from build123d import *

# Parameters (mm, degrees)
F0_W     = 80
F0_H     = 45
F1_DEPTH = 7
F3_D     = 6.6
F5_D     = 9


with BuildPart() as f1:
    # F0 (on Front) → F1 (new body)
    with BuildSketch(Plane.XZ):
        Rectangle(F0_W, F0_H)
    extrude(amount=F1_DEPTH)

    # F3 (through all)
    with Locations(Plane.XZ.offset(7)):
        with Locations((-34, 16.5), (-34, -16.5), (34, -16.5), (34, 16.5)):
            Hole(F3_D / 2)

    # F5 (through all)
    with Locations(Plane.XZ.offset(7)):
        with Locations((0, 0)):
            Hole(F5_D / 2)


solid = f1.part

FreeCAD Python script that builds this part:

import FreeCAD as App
import Part
import Sketcher
from FreeCAD import Vector
Q = App.Units.Quantity


def add_polygon(sketch, points):
    """Adds a closed chain of lines whose ends are joined by coincident constraints."""
    first, n = sketch.GeometryCount, len(points)
    for a, b in zip(points, points[1:] + points[:1]):
        sketch.addGeometry(Part.LineSegment(App.Vector(*a, 0), App.Vector(*b, 0)), False)
    for i in range(n):
        sketch.addConstraint(Sketcher.Constraint("Coincident", first + i, 2, first + (i + 1) % n, 1))

doc = App.newDocument("Part")
body = doc.addObject("PartDesign::Body", "Body")

sketch1 = body.newObject("Sketcher::SketchObject", "Sketch")
sketch1.AttachmentSupport = (doc.getObject("XZ_Plane"), [""])
sketch1.MapMode = "FlatFace"
add_polygon(sketch1, [(-40, 22), (-40, -22), (40, -22), (40, 22)])
sketch1.addConstraint([
    Sketcher.Constraint("Vertical", 0),
    Sketcher.Constraint("Horizontal", 1),
    Sketcher.Constraint("Vertical", 2),
    Sketcher.Constraint("Horizontal", 3),
    Sketcher.Constraint("Symmetric", 0, 2, 2, 2, -1, 1),
    Sketcher.Constraint("DistanceX", 1, 1, 1, 2, Q("80 mm")),
    Sketcher.Constraint("DistanceY", 0, 2, 0, 1, Q("45 mm")),
])
pad1 = body.newObject("PartDesign::Pad", "Pad")
pad1.Profile = sketch1
pad1.Length = 7

sketch2 = body.newObject("Sketcher::SketchObject", "Sketch001")
sketch2.AttachmentSupport = (doc.getObject("XZ_Plane"), [""])
sketch2.MapMode = "FlatFace"
sketch2.AttachmentOffset = App.Placement(Vector(0, 0, 7), App.Rotation())
sketch2.addGeometry([
    Part.Circle(Vector(-34, 16.5, 0), Vector(0, 0, 1), 3.3),
    Part.Circle(Vector(-34, -16.5, 0), Vector(0, 0, 1), 3.3),
    Part.Circle(Vector(34, -16.5, 0), Vector(0, 0, 1), 3.3),
    Part.Circle(Vector(34, 16.5, 0), Vector(0, 0, 1), 3.3),
], False)
sketch2.addConstraint([
    Sketcher.Constraint("Equal", 0, 1),
    Sketcher.Constraint("Equal", 1, 2),
    Sketcher.Constraint("Equal", 2, 3),
    Sketcher.Constraint("Symmetric", 0, 3, 2, 3, -1, 1),
    Sketcher.Constraint("Symmetric", 1, 3, 3, 3, -1, 1),
    Sketcher.Constraint("Symmetric", 1, 3, 2, 3, -2),
    Sketcher.Constraint("Diameter", 0, Q("6.6 mm")),
    Sketcher.Constraint("DistanceX", 0, 3, -1, 1, Q("34 mm")),
    Sketcher.Constraint("DistanceY", 1, 3, 0, 3, Q("33 mm")),
])
doc.recompute()
hole = body.newObject("PartDesign::Hole", "Hole")
hole.Profile = sketch2
hole.ThreadType = "None"
hole.Diameter = 6.6
hole.DepthType = "ThroughAll"

sketch3 = body.newObject("Sketcher::SketchObject", "Sketch002")
sketch3.AttachmentSupport = (doc.getObject("XZ_Plane"), [""])
sketch3.MapMode = "FlatFace"
sketch3.AttachmentOffset = App.Placement(Vector(0, 0, 7), App.Rotation())
sketch3.addGeometry(Part.Circle(Vector(0, 0, 0), Vector(0, 0, 1), 4.5), False)
sketch3.addConstraint([
    Sketcher.Constraint("Coincident", 0, 3, -1, 1),
    Sketcher.Constraint("Diameter", 0, Q("9 mm")),
])
doc.recompute()
hole2 = body.newObject("PartDesign::Hole", "Hole001")
hole2.Profile = sketch3
hole2.ThreadType = "None"
hole2.Diameter = 9
hole2.DepthType = "ThroughAll"

doc.recompute()
